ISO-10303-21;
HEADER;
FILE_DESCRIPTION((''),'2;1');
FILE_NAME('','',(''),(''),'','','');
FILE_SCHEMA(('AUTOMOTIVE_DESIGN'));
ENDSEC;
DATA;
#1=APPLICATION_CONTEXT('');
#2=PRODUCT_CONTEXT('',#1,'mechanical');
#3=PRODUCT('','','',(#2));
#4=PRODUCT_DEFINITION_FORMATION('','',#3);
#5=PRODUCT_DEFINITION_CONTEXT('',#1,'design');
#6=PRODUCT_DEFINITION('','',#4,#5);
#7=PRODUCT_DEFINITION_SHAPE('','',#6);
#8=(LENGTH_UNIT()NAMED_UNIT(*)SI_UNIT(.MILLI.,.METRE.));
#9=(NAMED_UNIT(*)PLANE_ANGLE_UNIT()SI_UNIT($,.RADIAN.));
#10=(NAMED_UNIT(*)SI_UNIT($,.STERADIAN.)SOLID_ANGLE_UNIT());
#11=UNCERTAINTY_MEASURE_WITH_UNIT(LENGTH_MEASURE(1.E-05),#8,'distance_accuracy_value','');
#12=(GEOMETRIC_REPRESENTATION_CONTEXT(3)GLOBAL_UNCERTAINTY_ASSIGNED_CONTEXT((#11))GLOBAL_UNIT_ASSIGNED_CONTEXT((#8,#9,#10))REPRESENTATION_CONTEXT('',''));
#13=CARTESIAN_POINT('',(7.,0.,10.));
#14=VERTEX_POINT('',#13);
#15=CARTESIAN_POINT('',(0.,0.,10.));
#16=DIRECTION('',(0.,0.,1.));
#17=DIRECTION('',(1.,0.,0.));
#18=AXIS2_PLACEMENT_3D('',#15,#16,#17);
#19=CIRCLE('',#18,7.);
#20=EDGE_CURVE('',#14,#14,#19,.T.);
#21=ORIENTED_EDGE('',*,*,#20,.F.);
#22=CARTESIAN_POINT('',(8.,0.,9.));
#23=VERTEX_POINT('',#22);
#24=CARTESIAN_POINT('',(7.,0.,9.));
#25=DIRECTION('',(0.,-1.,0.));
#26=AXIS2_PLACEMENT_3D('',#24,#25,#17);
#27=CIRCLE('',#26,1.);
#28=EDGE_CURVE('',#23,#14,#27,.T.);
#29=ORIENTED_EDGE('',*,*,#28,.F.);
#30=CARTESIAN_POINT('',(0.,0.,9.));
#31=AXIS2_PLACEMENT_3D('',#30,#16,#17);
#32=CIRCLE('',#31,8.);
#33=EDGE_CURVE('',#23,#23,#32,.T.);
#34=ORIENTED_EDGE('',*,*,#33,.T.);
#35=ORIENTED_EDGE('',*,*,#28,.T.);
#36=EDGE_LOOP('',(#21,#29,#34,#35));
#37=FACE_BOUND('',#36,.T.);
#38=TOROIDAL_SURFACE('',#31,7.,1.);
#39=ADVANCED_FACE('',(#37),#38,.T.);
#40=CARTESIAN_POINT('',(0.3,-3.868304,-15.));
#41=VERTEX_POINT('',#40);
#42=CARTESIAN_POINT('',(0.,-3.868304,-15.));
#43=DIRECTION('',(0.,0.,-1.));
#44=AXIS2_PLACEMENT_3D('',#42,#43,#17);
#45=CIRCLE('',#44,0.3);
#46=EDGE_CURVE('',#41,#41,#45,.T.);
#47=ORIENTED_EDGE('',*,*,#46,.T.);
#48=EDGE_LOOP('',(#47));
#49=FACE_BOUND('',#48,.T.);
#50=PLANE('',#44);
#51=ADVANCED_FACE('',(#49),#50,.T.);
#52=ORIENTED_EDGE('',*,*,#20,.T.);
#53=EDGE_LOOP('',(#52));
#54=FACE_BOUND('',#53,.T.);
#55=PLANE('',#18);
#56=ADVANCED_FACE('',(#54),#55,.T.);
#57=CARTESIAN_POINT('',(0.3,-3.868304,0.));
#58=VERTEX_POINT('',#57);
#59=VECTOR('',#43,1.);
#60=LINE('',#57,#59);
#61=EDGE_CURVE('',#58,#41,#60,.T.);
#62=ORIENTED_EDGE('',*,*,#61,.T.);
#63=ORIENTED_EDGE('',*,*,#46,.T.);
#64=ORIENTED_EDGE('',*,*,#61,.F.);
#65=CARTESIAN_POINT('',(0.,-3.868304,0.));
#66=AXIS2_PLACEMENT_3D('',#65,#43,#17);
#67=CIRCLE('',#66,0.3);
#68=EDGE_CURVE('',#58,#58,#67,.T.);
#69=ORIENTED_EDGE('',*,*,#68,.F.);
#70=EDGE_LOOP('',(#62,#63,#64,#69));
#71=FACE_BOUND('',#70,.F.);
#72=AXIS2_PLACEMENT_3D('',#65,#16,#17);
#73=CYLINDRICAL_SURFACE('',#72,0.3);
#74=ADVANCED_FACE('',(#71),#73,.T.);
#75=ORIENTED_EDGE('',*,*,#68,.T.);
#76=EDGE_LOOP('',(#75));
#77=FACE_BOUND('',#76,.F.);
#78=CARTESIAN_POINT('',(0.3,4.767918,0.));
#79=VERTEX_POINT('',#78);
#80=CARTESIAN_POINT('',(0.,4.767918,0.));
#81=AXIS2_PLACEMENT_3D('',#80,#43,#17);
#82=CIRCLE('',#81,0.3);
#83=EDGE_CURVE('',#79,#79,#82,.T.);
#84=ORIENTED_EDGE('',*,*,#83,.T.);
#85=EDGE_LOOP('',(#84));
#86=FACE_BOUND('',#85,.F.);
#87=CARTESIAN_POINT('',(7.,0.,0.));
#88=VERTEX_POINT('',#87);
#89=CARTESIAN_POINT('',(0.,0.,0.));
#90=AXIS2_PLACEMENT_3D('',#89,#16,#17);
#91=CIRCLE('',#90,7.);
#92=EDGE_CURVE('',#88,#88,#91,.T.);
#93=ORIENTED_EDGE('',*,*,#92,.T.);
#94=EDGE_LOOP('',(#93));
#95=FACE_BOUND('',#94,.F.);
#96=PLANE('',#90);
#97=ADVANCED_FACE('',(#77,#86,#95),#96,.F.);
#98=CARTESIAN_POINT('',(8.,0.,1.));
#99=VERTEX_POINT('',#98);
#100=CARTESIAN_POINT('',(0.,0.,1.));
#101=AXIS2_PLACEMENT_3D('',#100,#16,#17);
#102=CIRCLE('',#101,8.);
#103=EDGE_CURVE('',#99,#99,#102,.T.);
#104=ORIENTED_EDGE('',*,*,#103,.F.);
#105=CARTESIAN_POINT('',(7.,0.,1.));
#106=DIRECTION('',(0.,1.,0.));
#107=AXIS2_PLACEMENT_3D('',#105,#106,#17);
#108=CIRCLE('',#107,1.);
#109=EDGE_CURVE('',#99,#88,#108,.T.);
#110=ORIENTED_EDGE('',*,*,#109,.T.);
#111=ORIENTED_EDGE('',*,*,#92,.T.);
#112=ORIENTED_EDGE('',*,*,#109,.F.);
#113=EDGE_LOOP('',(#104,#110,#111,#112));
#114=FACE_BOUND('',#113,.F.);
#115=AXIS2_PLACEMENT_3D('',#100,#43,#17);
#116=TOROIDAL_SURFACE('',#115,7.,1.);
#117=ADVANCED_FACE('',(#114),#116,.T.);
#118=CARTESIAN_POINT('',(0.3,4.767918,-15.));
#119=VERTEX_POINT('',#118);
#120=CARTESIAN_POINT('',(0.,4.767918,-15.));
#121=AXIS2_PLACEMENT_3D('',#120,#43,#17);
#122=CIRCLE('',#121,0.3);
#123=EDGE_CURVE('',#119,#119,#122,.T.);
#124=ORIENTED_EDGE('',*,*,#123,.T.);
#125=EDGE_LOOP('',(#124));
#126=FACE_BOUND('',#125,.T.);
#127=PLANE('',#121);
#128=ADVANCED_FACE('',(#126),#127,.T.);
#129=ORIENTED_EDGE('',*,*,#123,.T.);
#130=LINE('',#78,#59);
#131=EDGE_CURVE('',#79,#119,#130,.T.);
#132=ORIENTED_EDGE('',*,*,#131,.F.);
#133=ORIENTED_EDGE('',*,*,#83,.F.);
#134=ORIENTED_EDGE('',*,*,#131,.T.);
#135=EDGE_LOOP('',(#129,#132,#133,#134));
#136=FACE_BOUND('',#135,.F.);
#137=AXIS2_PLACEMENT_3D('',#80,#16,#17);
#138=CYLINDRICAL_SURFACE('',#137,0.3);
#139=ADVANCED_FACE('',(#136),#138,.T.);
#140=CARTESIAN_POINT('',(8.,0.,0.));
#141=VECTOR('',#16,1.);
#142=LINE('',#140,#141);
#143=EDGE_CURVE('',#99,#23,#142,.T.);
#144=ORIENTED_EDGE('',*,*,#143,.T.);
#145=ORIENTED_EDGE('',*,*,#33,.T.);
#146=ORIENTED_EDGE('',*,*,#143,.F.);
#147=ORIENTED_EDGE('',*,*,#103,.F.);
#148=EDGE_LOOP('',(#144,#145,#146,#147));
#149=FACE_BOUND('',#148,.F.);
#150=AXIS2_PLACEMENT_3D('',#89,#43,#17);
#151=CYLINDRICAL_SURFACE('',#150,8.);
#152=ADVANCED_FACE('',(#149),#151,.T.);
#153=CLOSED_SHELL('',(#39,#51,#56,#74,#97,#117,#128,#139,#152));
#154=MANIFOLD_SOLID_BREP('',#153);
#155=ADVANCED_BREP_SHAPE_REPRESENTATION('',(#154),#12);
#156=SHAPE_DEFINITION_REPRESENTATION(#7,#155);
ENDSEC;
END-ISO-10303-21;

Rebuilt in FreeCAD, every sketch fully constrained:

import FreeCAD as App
import Part
import Sketcher
Q = App.Units.Quantity


def edges_at(feature, points):
    """Names of the edges that pass closest to the given points."""
    edges = feature.Shape.Edges
    near = lambda p: min(range(len(edges)), key=lambda i: edges[i].distToShape(Part.Vertex(*p))[0])
    return sorted({f"Edge{near(p) + 1}" for p in points})

doc = App.newDocument("Part")
body = doc.addObject("PartDesign::Body", "Body")

sketch1 = body.newObject("Sketcher::SketchObject", "Sketch")
sketch1.AttachmentSupport = (doc.getObject("XY_Plane"), [""])
sketch1.MapMode = "FlatFace"
sketch1.addGeometry(Part.Circle(App.Vector(0, 0, 0), App.Vector(0, 0, 1), 8), False)
sketch1.addConstraint(Sketcher.Constraint("Coincident", 0, 3, -1, 1))
sketch1.addConstraint(Sketcher.Constraint("Diameter", 0, Q("16 mm")))
pad1 = body.newObject("PartDesign::Pad", "Pad")
pad1.Profile = sketch1
pad1.Length = 10

sketch2 = body.newObject("Sketcher::SketchObject", "Sketch001")
sketch2.AttachmentSupport = (doc.getObject("XY_Plane"), [""])
sketch2.MapMode = "FlatFace"
sketch2.addGeometry(Part.Circle(App.Vector(0, -3.87, 0), App.Vector(0, 0, 1), 0.3), False)
sketch2.addGeometry(Part.Circle(App.Vector(0, 4.77, 0), App.Vector(0, 0, 1), 0.3), False)
sketch2.addConstraint(Sketcher.Constraint("Equal", 0, 1))
sketch2.addConstraint(Sketcher.Constraint("PointOnObject", 0, 3, -2))
sketch2.addConstraint(Sketcher.Constraint("PointOnObject", 1, 3, -2))
sketch2.addConstraint(Sketcher.Constraint("Diameter", 0, Q("0.6 mm")))
sketch2.addConstraint(Sketcher.Constraint("DistanceY", 0, 3, -1, 1, Q("3.868304 mm")))
sketch2.addConstraint(Sketcher.Constraint("DistanceY", -1, 1, 1, 3, Q("4.767918 mm")))
pad2 = body.newObject("PartDesign::Pad", "Pad001")
pad2.Profile = sketch2
pad2.Length = 15
pad2.Reversed = True
doc.recompute()

fillet = body.newObject("PartDesign::Fillet", "Fillet")
fillet.Base = (pad2, edges_at(pad2, [(-8, 0, 10), (-8, 0, 0)]))
fillet.Radius = 1

doc.recompute()
